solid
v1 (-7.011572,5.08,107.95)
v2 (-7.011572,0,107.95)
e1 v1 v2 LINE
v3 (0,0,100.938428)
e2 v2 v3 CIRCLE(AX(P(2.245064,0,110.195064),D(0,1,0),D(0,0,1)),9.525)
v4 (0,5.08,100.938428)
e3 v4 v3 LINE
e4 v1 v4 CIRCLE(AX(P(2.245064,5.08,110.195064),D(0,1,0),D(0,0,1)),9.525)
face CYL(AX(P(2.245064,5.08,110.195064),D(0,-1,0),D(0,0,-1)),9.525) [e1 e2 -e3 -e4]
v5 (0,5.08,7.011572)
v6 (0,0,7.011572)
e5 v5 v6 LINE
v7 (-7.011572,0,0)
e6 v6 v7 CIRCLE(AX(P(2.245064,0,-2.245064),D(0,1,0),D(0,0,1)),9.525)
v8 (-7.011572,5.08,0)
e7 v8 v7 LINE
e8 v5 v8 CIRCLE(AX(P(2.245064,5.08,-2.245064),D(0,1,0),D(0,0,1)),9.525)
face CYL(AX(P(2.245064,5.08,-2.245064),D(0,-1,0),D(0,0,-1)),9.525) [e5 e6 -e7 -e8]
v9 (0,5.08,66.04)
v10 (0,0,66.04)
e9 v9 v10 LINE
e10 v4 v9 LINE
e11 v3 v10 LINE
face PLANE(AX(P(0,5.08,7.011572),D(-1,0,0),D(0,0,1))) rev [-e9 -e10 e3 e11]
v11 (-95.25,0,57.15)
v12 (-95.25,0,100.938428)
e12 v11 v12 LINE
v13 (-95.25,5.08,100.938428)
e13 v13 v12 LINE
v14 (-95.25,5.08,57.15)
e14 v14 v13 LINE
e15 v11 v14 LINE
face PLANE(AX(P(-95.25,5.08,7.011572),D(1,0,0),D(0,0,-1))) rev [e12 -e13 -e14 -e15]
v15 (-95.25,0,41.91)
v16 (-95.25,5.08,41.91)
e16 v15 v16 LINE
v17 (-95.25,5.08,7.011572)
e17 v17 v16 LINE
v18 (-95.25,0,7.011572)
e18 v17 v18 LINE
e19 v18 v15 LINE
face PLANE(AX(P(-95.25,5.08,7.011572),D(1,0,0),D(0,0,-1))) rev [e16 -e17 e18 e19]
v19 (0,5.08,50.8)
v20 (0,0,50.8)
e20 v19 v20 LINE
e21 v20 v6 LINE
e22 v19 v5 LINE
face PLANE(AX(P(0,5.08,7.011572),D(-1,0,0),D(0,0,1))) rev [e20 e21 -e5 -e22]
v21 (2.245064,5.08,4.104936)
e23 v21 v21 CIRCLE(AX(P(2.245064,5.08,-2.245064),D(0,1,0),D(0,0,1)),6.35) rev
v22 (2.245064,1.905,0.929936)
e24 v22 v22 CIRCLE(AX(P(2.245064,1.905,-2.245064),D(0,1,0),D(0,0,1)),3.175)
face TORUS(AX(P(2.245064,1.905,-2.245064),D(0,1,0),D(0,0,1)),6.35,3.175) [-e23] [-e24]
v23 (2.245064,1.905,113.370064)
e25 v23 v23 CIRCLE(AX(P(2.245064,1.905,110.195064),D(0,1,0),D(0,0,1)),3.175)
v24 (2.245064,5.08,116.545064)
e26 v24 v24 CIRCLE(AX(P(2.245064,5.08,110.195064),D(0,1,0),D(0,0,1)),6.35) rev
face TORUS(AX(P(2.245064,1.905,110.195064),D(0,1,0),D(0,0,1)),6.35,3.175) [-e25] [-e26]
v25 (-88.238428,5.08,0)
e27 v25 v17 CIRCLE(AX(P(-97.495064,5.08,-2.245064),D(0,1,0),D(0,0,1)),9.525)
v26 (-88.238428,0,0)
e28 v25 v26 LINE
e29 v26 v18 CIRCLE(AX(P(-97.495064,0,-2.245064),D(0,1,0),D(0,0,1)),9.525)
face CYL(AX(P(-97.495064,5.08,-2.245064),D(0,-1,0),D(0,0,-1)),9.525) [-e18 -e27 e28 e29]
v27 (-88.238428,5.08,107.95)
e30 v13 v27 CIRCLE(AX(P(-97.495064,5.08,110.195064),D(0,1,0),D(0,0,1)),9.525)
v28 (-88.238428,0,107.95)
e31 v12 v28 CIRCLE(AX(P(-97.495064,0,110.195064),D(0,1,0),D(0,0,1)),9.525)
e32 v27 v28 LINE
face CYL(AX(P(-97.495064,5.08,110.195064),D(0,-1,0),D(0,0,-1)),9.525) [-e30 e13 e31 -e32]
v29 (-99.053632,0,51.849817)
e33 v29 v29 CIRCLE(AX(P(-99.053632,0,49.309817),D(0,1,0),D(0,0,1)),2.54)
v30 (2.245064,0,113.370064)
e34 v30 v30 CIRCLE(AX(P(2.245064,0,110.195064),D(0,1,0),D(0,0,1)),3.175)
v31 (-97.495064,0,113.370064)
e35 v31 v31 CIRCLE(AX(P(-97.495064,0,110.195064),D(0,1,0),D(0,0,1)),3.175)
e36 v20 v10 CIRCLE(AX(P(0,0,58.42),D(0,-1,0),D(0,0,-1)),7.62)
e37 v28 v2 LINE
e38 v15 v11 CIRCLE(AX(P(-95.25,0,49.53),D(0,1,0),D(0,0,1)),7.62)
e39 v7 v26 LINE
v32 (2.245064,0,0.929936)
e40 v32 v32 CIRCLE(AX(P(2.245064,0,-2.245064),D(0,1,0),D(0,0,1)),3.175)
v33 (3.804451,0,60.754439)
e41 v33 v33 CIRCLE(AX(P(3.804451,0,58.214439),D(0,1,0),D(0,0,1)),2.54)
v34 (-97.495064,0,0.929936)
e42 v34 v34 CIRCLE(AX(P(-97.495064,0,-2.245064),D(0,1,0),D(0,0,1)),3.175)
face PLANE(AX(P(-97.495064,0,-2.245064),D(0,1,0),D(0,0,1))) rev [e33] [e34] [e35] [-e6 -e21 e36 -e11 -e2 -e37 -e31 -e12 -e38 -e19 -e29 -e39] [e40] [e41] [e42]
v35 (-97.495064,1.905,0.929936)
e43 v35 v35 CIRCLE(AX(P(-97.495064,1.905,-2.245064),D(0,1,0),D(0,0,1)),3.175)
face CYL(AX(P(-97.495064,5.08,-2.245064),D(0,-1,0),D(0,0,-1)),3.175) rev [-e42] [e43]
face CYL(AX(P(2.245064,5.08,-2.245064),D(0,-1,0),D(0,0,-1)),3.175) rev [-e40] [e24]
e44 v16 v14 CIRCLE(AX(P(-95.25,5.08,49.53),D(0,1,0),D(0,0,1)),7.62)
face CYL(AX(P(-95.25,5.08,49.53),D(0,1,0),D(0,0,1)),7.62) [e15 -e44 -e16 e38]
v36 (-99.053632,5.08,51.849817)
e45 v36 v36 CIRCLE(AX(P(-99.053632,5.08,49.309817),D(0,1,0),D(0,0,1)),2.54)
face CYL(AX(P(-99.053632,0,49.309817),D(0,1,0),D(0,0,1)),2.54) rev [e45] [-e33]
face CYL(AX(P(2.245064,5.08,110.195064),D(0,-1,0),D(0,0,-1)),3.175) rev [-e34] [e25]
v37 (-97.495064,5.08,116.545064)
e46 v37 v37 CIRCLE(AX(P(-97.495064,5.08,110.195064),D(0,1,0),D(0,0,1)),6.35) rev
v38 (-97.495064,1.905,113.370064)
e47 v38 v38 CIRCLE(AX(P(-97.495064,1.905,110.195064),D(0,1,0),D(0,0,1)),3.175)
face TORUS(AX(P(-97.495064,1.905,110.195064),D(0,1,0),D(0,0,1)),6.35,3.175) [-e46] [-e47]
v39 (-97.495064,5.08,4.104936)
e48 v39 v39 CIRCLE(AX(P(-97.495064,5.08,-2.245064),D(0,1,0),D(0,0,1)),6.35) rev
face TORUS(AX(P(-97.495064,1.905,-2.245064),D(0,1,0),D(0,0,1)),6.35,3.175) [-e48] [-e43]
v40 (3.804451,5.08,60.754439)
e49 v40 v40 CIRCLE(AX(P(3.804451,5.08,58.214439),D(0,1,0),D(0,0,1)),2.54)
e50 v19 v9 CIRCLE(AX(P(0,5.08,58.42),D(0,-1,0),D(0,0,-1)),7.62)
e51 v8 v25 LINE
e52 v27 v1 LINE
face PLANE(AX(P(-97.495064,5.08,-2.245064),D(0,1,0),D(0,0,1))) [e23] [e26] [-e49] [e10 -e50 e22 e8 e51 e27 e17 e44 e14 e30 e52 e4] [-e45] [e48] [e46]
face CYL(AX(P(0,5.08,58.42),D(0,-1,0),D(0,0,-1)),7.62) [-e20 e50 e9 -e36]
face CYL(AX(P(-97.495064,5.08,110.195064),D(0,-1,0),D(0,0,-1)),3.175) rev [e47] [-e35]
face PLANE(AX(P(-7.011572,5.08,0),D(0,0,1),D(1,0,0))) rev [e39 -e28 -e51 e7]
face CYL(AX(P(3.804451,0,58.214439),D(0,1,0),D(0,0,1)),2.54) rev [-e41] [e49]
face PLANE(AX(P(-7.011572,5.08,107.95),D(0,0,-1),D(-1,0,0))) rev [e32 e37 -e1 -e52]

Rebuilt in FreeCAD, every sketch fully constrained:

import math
import FreeCAD as App
import Part
import Sketcher
from FreeCAD import Vector
Q = App.Units.Quantity


def edges_at(feature, points):
    """Names of the edges that pass closest to the given points."""
    edges = feature.Shape.Edges
    near = lambda p: min(range(len(edges)), key=lambda i: edges[i].distToShape(Part.Vertex(*p))[0])
    return sorted({f"Edge{near(p) + 1}" for p in points})

doc = App.newDocument("Part")
body = doc.addObject("PartDesign::Body", "Body")

# Sketch on XZ plane
sketch1 = body.newObject("Sketcher::SketchObject", "Sketch")
sketch1.AttachmentSupport = (doc.getObject("XZ_Plane"), [""])
sketch1.MapMode = "FlatFace"
sketch1.addGeometry([
    Part.LineSegment(Vector(-7, 0, 0), Vector(-88.2, 0, 0)),  # 0
    Part.ArcOfCircle(Part.Circle(Vector(-97.5, -2.2, 0), Vector(0, 0, 1), 9.5), math.radians(76), math.radians(374)),  # 1
    Part.LineSegment(Vector(-95.2, 7, 0), Vector(-95.2, 100.9, 0)),  # 2
    Part.ArcOfCircle(Part.Circle(Vector(-97.5, 110.2, 0), Vector(0, 0, 1), 9.5), math.radians(-14), math.radians(284)),  # 3
    Part.LineSegment(Vector(-88.2, 108, 0), Vector(-7, 108, 0)),  # 4
    Part.ArcOfCircle(Part.Circle(Vector(2.2, 110.2, 0), Vector(0, 0, 1), 9.5), math.radians(-104), math.radians(194)),  # 5
    Part.LineSegment(Vector(0, 100.9, 0), Vector(0, 7, 0)),  # 6
    Part.ArcOfCircle(Part.Circle(Vector(2.2, -2.2, 0), Vector(0, 0, 1), 9.5), math.radians(166), math.radians(464)),  # 7
    Part.Circle(Vector(-97.5, 110.2, 0), Vector(0, 0, 1), 3.2),  # 8
    Part.Circle(Vector(2.2, 110.2, 0), Vector(0, 0, 1), 3.2),  # 9
    Part.Circle(Vector(-97.5, -2.2, 0), Vector(0, 0, 1), 3.2),  # 10
    Part.Circle(Vector(2.2, -2.2, 0), Vector(0, 0, 1), 3.2),  # 11
], False)
sketch1.addConstraint([
    Sketcher.Constraint("Coincident", 0, 2, 1, 2),
    Sketcher.Constraint("Coincident", 1, 1, 2, 1),
    Sketcher.Constraint("Coincident", 2, 2, 3, 2),
    Sketcher.Constraint("Coincident", 3, 1, 4, 1),
    Sketcher.Constraint("Coincident", 4, 2, 5, 2),
    Sketcher.Constraint("Coincident", 5, 1, 6, 1),
    Sketcher.Constraint("Coincident", 6, 2, 7, 2),
    Sketcher.Constraint("Coincident", 7, 1, 0, 1),
    Sketcher.Constraint("Horizontal", 0),
    Sketcher.Constraint("Vertical", 2),
    Sketcher.Constraint("Horizontal", 4),
    Sketcher.Constraint("Vertical", 6),
    Sketcher.Constraint("Coincident", 8, 3, 3, 3),
    Sketcher.Constraint("Coincident", 9, 3, 5, 3),
    Sketcher.Constraint("Coincident", 10, 3, 1, 3),
    Sketcher.Constraint("Coincident", 11, 3, 7, 3),
    Sketcher.Constraint("Equal", 1, 3),
    Sketcher.Constraint("Equal", 3, 5),
    Sketcher.Constraint("Equal", 5, 7),
    Sketcher.Constraint("Equal", 8, 9),
    Sketcher.Constraint("Equal", 9, 10),
    Sketcher.Constraint("Equal", 10, 11),
    Sketcher.Constraint("PointOnObject", 0, 2, -1),
    Sketcher.Constraint("PointOnObject", 5, 1, -2),
    Sketcher.Constraint("Horizontal", 3, 3, 5, 3),
    Sketcher.Constraint("Horizontal", 1, 3, 7, 3),
    Sketcher.Constraint("Horizontal", 2, 2, 5, 1),
    Sketcher.Constraint("Horizontal", 1, 1, 6, 2),
    Sketcher.Constraint("Vertical", 1, 3, 3, 3),
    Sketcher.Constraint("Vertical", 0, 2, 3, 1),
    Sketcher.Constraint("Diameter", 8, Q("0.25 in")),
    Sketcher.Constraint("Radius", 1, Q("0.375 in")),
    Sketcher.Constraint("DistanceX", 1, 1, -1, 1, Q("3.75 in")),
    Sketcher.Constraint("DistanceY", -1, 1, 3, 1, Q("4.25 in")),
    Sketcher.Constraint("DistanceX", 0, 2, 0, 1, 81.226856),
    Sketcher.Constraint("DistanceY", 2, 1, 2, 2, 93.926856),
])
pad1 = body.newObject("PartDesign::Pad", "Pad")
pad1.Profile = sketch1
pad1.Length = Q("0.2 in")
pad1.Reversed = True

# Sketch on YZ plane
sketch2 = body.newObject("Sketcher::SketchObject", "Sketch001")
sketch2.AttachmentSupport = (doc.getObject("YZ_Plane"), [""])
sketch2.MapMode = "FlatFace"
sketch2.AttachmentOffset = App.Placement(Vector(0, 0, -3.75 * 25.4), App.Rotation())
sketch2.addGeometry([
    Part.LineSegment(Vector(5, 50, 0), Vector(0, 50, 0)),
    Part.LineSegment(Vector(0, 50, 0), Vector(0, 57, 0)),
    Part.LineSegment(Vector(0, 57, 0), Vector(5, 57, 0)),
    Part.LineSegment(Vector(5, 57, 0), Vector(5, 50, 0)),
], False)
sketch2.addGeometry(Part.LineSegment(Vector(5, 50, 0), Vector(0, 50, 0)), True)  # axis
sketch2.addConstraint([
    Sketcher.Constraint("Coincident", 0, 2, 1, 1),
    Sketcher.Constraint("Coincident", 1, 2, 2, 1),
    Sketcher.Constraint("Coincident", 2, 2, 3, 1),
    Sketcher.Constraint("Coincident", 3, 2, 0, 1),
    Sketcher.Constraint("Horizontal", 0),
    Sketcher.Constraint("Vertical", 1),
    Sketcher.Constraint("Horizontal", 2),
    Sketcher.Constraint("Vertical", 3),
    Sketcher.Constraint("Horizontal", 4),
    Sketcher.Constraint("Coincident", 4, 1, 3, 2),
    Sketcher.Constraint("PointOnObject", 0, 2, -2),
    Sketcher.Constraint("PointOnObject", 4, 2, -2),
    Sketcher.Constraint("DistanceX", 0, 2, 0, 1, Q("0.2 in")),
    Sketcher.Constraint("DistanceY", 1, 1, 1, 2, Q("0.3 in")),
    Sketcher.Constraint("DistanceY", -1, 1, 0, 2, Q("1.95 in")),
])
revolution = body.newObject("PartDesign::Revolution", "Revolution")
revolution.Profile = sketch2
revolution.ReferenceAxis = (sketch2, ["Axis0"])
revolution.Angle = 180

# Sketch on YZ plane
sketch3 = body.newObject("Sketcher::SketchObject", "Sketch002")
sketch3.AttachmentSupport = (doc.getObject("YZ_Plane"), [""])
sketch3.MapMode = "FlatFace"
sketch3.addGeometry([
    Part.LineSegment(Vector(5, 66, 0), Vector(0, 66, 0)),
    Part.LineSegment(Vector(0, 66, 0), Vector(0, 58, 0)),
    Part.LineSegment(Vector(0, 58, 0), Vector(5, 58, 0)),
    Part.LineSegment(Vector(5, 58, 0), Vector(5, 66, 0)),
], False)
sketch3.addGeometry(Part.LineSegment(Vector(0, 58, 0), Vector(5, 58, 0)), True)  # axis
sketch3.addConstraint([
    Sketcher.Constraint("Coincident", 0, 2, 1, 1),
    Sketcher.Constraint("Coincident", 1, 2, 2, 1),
    Sketcher.Constraint("Coincident", 2, 2, 3, 1),
    Sketcher.Constraint("Coincident", 3, 2, 0, 1),
    Sketcher.Constraint("Horizontal", 0),
    Sketcher.Constraint("Vertical", 1),
    Sketcher.Constraint("Horizontal", 2),
    Sketcher.Constraint("Vertical", 3),
    Sketcher.Constraint("Horizontal", 4),
    Sketcher.Constraint("Coincident", 4, 1, 1, 2),
    Sketcher.Constraint("PointOnObject", 0, 2, -2),
    Sketcher.Constraint("Vertical", 3, 2, 4, 2),
    Sketcher.Constraint("DistanceX", 0, 2, 0, 1, Q("0.2 in")),
    Sketcher.Constraint("DistanceY", 1, 2, 1, 1, Q("0.3 in")),
    Sketcher.Constraint("DistanceY", -1, 1, 0, 2, Q("2.6 in")),
])
revolution2 = body.newObject("PartDesign::Revolution", "Revolution001")
revolution2.Profile = sketch3
revolution2.ReferenceAxis = (sketch3, ["Axis0"])
revolution2.Angle = 180

# Sketch on XZ plane
sketch4 = body.newObject("Sketcher::SketchObject", "Sketch003")
sketch4.AttachmentSupport = (doc.getObject("XZ_Plane"), [""])
sketch4.MapMode = "FlatFace"
sketch4.AttachmentOffset = App.Placement(Vector(0, 0, -0.2 * 25.4), App.Rotation())
sketch4.addGeometry(Part.Circle(Vector(-99.1, 49.3, 0), Vector(0, 0, 1), 2.5), False)
sketch4.addConstraint([
    Sketcher.Constraint("Diameter", 0, Q("0.2 in")),
    Sketcher.Constraint("DistanceX", 0, 3, -1, 1, 99.053632),
    Sketcher.Constraint("DistanceY", -1, 1, 0, 3, 49.309817),
])
pocket1 = body.newObject("PartDesign::Pocket", "Pocket")
pocket1.Profile = sketch4
pocket1.Type = "ThroughAll"
pocket1.Reversed = True

# Sketch on XZ plane
sketch5 = body.newObject("Sketcher::SketchObject", "Sketch004")
sketch5.AttachmentSupport = (doc.getObject("XZ_Plane"), [""])
sketch5.MapMode = "FlatFace"
sketch5.AttachmentOffset = App.Placement(Vector(0, 0, -0.2 * 25.4), App.Rotation())
sketch5.addGeometry(Part.Circle(Vector(3.8, 58.2, 0), Vector(0, 0, 1), 2.5), False)
sketch5.addConstraint([
    Sketcher.Constraint("Diameter", 0, Q("0.2 in")),
    Sketcher.Constraint("DistanceX", -1, 1, 0, 3, 3.804451),
    Sketcher.Constraint("DistanceY", -1, 1, 0, 3, 58.214439),
])
pocket2 = body.newObject("PartDesign::Pocket", "Pocket001")
pocket2.Profile = sketch5
pocket2.Type = "ThroughAll"
pocket2.Reversed = True
doc.recompute()

fillet = body.newObject("PartDesign::Fillet", "Fillet")
fillet.Base = (pocket2, edges_at(pocket2, [
    (-97.495, 5.08, -5.42),
    (2.245, 5.08, -5.42),
    (2.245, 5.08, 107.02),
    (-97.495, 5.08, 107.02),
]))
fillet.Radius = Q("0.125 in")

doc.recompute()
